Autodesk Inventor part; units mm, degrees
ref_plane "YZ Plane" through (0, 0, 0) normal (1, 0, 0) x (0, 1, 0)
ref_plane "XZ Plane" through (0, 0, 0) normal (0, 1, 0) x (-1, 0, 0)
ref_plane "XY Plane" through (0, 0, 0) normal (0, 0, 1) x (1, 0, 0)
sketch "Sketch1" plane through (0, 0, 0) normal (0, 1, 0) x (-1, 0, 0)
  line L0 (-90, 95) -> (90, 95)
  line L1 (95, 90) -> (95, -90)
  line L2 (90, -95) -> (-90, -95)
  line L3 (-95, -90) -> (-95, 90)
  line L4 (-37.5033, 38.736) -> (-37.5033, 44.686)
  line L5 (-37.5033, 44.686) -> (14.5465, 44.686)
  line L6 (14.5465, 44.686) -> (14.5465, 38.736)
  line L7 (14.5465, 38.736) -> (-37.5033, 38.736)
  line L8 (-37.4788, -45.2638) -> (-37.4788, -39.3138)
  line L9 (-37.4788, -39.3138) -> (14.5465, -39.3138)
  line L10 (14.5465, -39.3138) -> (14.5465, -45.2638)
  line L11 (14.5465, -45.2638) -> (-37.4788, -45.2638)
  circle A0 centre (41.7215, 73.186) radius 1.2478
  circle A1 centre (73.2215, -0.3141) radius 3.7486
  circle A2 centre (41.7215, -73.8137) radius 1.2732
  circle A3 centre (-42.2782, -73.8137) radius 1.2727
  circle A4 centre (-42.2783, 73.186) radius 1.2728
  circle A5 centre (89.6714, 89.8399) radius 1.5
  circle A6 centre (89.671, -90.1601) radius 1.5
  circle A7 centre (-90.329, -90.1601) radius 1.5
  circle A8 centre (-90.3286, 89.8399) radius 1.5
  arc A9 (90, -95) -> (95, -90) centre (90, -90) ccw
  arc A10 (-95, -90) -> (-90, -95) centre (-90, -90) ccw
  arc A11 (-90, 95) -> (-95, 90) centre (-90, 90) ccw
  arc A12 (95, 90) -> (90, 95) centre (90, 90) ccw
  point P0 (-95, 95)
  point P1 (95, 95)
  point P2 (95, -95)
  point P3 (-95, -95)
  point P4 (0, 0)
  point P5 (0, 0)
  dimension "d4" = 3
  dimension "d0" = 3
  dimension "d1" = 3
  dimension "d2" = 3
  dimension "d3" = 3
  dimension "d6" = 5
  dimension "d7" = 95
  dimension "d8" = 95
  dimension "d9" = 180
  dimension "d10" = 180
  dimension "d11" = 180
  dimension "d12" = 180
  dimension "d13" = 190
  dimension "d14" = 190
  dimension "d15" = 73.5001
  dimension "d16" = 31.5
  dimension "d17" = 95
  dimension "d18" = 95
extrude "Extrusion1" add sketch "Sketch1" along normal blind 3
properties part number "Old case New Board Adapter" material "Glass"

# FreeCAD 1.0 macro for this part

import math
import FreeCAD as App
import Part
import Sketcher

V = App.Vector


def add_polygon(sketch, points):
    """Adds a closed chain of lines whose ends are joined by coincident constraints."""
    first, n = sketch.GeometryCount, len(points)
    for a, b in zip(points, points[1:] + points[:1]):
        sketch.addGeometry(Part.LineSegment(App.Vector(*a, 0), App.Vector(*b, 0)), False)
    for i in range(n):
        sketch.addConstraint(Sketcher.Constraint("Coincident", first + i, 2, first + (i + 1) % n, 1))

doc = App.newDocument("Part")
params = doc.addObject("Spreadsheet::Sheet", "Params")
for row, (alias, value) in enumerate([
    ("sketch1_diameter", "3 mm"),
    ("sketch1_radius", "5 mm"),
    ("sketch1_width", "180 mm"),
    ("sketch1_height", "5.95 mm"),
    ("pad1_length", "3 mm"),
], start=1):
    params.set(f"A{row}", alias)
    params.set(f"B{row}", "=" + value)
    params.setAlias(f"B{row}", alias)

body = doc.addObject("PartDesign::Body", "Body")

sketch1 = body.newObject("Sketcher::SketchObject", "Sketch")
sketch1.AttachmentSupport = (doc.getObject("XZ_Plane"), [""])
sketch1.MapMode = "FlatFace"
sketch1.addGeometry(Part.LineSegment(V(-90, 95, 0), V(90, 95, 0)), False)
sketch1.addGeometry(Part.ArcOfCircle(Part.Circle(V(90, 90, 0), V(0, 0, 1), 5), math.radians(0), math.radians(90)), False)
sketch1.addGeometry(Part.LineSegment(V(95, 90, 0), V(95, -90, 0)), False)
sketch1.addGeometry(Part.ArcOfCircle(Part.Circle(V(90, -90, 0), V(0, 0, 1), 5), math.radians(-90), math.radians(0)), False)
sketch1.addGeometry(Part.LineSegment(V(90, -95, 0), V(-90, -95, 0)), False)
sketch1.addGeometry(Part.ArcOfCircle(Part.Circle(V(-90, -90, 0), V(0, 0, 1), 5), math.radians(180), math.radians(270)), False)
sketch1.addGeometry(Part.LineSegment(V(-95, -90, 0), V(-95, 90, 0)), False)
sketch1.addGeometry(Part.ArcOfCircle(Part.Circle(V(-90, 90, 0), V(0, 0, 1), 5), math.radians(90), math.radians(180)), False)
sketch1.addGeometry(Part.Circle(V(90.329, -90.1601, 0), V(0, 0, 1), 1.5), False)
sketch1.addGeometry(Part.Circle(V(42.2782, -73.8137, 0), V(0, 0, 1), 1.2727), False)
add_polygon(sketch1, [(-14.5465, -45.2638), (37.4788, -45.2638), (37.4788, -39.3138), (-14.5465, -39.3138)])
sketch1.addGeometry(Part.Circle(V(-41.7215, -73.8137, 0), V(0, 0, 1), 1.2732), False)
sketch1.addGeometry(Part.Circle(V(-89.671, -90.1601, 0), V(0, 0, 1), 1.5), False)
sketch1.addGeometry(Part.Circle(V(-73.2215, -0.3141, 0), V(0, 0, 1), 3.7486), False)
add_polygon(sketch1, [(-14.5465, 38.736), (37.5033, 38.736), (37.5033, 44.686), (-14.5465, 44.686)])
sketch1.addGeometry(Part.Circle(V(90.3286, 89.8399, 0), V(0, 0, 1), 1.5), False)
sketch1.addGeometry(Part.Circle(V(42.2783, 73.186, 0), V(0, 0, 1), 1.2728), False)
sketch1.addGeometry(Part.Circle(V(-41.7215, 73.186, 0), V(0, 0, 1), 1.2478), False)
sketch1.addGeometry(Part.Circle(V(-89.6714, 89.8399, 0), V(0, 0, 1), 1.5), False)
sketch1.addConstraint([
    Sketcher.Constraint("Tangent", 0, 2, 1, 2),
    Sketcher.Constraint("Tangent", 1, 1, 2, 1),
    Sketcher.Constraint("Tangent", 2, 2, 3, 2),
    Sketcher.Constraint("Tangent", 3, 1, 4, 1),
    Sketcher.Constraint("Tangent", 4, 2, 5, 2),
    Sketcher.Constraint("Tangent", 5, 1, 6, 1),
    Sketcher.Constraint("Tangent", 6, 2, 7, 2),
    Sketcher.Constraint("Tangent", 7, 1, 0, 1),
    Sketcher.Constraint("Horizontal", 0),
    Sketcher.Constraint("Vertical", 2),
    Sketcher.Constraint("Horizontal", 4),
    Sketcher.Constraint("Vertical", 6),
    Sketcher.Constraint("Horizontal", 10),
    Sketcher.Constraint("Vertical", 11),
    Sketcher.Constraint("Horizontal", 12),
    Sketcher.Constraint("Vertical", 13),
    Sketcher.Constraint("Horizontal", 17),
    Sketcher.Constraint("Vertical", 18),
    Sketcher.Constraint("Horizontal", 19),
    Sketcher.Constraint("Vertical", 20),
    Sketcher.Constraint("Equal", 1, 3),
    Sketcher.Constraint("Equal", 3, 5),
    Sketcher.Constraint("Equal", 5, 7),
    Sketcher.Constraint("Equal", 8, 15),
    Sketcher.Constraint("Equal", 15, 21),
    Sketcher.Constraint("Equal", 9, 22),
    Sketcher.Constraint("Equal", 21, 24),
    Sketcher.Constraint("Symmetric", 1, 3, 5, 3, -1, 1),
    Sketcher.Constraint("Horizontal", 9, 3, 14, 3),
    Sketcher.Constraint("Horizontal", 8, 3, 15, 3),
    Sketcher.Constraint("Horizontal", 22, 3, 23, 3),
    Sketcher.Constraint("Horizontal", 21, 3, 24, 3),
    Sketcher.Constraint("Vertical", 9, 3, 22, 3),
    Sketcher.Constraint("Vertical", 14, 3, 23, 3),
    Sketcher.Constraint("Vertical", 13, 2, 19, 2),
    Sketcher.Constraint("Equal", 4, 2),
    Sketcher.Constraint("Equal", 13, 18),
    Sketcher.Constraint("Diameter", 8, 3.0),
    Sketcher.Constraint("Radius", 1, 5.0),
    Sketcher.Constraint("DistanceX", 0, 1, 0, 2, 180.0),
    Sketcher.Constraint("DistanceX", 15, 3, 8, 3, 180.0),
    Sketcher.Constraint("DistanceY", 8, 3, 21, 3, 180.0),
    Sketcher.Constraint("DistanceX", 16, 3, 14, 3, 31.5),
    Sketcher.Constraint("DistanceY", 16, 3, 22, 3, 73.5),
    Sketcher.Constraint("DistanceY", 16, 3, 19, 2, 45.0),
    Sketcher.Constraint("Diameter", 9, 2.5454),
    Sketcher.Constraint("Diameter", 14, 2.5464),
    Sketcher.Constraint("Diameter", 16, 7.4972),
    Sketcher.Constraint("Diameter", 23, 2.4956),
    Sketcher.Constraint("DistanceY", 11, 1, 11, 2, 5.95),
    Sketcher.Constraint("DistanceY", 14, 3, 16, 3, 73.4996),
    Sketcher.Constraint("DistanceY", 9, 3, 11, 2, 34.5),
    Sketcher.Constraint("DistanceY", 8, 3, -1, 1, 90.16),
    Sketcher.Constraint("DistanceX", 23, 3, 21, 3, 132.05),
    Sketcher.Constraint("DistanceX", 24, 3, 23, 3, 47.95),
    Sketcher.Constraint("DistanceX", 10, 1, 10, 2, 52.0253),
    Sketcher.Constraint("DistanceX", 17, 1, 17, 2, 52.0498),
    Sketcher.Constraint("DistanceX", -1, 1, 8, 3, 90.329),
    Sketcher.Constraint("DistanceY", 16, 3, -1, 1, 0.314),
    Sketcher.Constraint("DistanceX", 14, 3, 12, 2, 27.175),
    Sketcher.Constraint("DistanceX", 17, 2, 22, 3, 4.775),
    Sketcher.Constraint("DistanceX", -1, 1, 9, 3, 42.2782),
])
sketch1.setExpression("Constraints[45]", "Params.sketch1_diameter")
sketch1.setExpression("Constraints[46]", "Params.sketch1_radius")
sketch1.setExpression("Constraints[47]", "Params.sketch1_width")
sketch1.setExpression("Constraints[57]", "Params.sketch1_height")
pad1 = body.newObject("PartDesign::Pad", "Pad")
pad1.Profile = sketch1
pad1.setExpression("Length", "Params.pad1_length")
pad1.Reversed = True

doc.recompute()
